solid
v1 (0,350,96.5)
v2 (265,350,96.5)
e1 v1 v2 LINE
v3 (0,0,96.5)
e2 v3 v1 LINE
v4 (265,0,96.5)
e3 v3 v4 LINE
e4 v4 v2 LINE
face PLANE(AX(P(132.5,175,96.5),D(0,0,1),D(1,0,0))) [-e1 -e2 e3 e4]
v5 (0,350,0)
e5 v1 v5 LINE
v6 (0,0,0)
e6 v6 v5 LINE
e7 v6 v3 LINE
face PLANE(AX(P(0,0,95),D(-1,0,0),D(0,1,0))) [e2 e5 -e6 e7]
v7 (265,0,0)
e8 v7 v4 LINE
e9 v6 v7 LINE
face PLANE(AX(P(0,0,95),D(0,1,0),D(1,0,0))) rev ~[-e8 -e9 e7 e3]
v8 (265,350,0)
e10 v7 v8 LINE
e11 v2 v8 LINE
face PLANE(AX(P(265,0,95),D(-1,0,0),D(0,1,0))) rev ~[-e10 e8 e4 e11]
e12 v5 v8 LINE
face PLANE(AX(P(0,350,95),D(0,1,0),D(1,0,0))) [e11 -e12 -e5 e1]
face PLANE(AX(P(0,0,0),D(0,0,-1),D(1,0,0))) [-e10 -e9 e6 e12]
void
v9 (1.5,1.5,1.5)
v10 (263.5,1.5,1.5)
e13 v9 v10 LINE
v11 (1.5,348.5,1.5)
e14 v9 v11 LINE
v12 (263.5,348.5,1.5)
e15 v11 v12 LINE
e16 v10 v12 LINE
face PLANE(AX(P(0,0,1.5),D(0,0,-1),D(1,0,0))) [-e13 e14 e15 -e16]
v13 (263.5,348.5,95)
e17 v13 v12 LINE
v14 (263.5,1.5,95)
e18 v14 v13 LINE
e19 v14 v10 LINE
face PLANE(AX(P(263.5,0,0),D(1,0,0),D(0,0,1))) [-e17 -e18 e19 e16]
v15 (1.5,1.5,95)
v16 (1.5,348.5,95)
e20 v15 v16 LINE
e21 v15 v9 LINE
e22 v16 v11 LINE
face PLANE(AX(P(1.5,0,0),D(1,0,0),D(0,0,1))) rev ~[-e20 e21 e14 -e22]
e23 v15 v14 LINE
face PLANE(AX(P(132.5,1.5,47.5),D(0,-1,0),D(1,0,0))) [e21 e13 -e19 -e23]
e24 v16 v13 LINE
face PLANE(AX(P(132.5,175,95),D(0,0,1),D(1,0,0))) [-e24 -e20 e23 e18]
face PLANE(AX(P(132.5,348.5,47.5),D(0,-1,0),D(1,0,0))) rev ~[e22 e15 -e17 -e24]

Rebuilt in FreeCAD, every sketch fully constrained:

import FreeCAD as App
import Part
import Sketcher
from FreeCAD import Vector
Q = App.Units.Quantity


def faces_at(feature, points):
    """Names of the faces that lie closest to the given points."""
    faces = feature.Shape.Faces
    near = lambda p: min(range(len(faces)), key=lambda i: faces[i].distToShape(Part.Vertex(*p))[0])
    return sorted({f"Face{near(p) + 1}" for p in points})

doc = App.newDocument("Part")
body = doc.addObject("PartDesign::Body", "Body")

# Sketch on XZ plane
sketch1 = body.newObject("Sketcher::SketchObject", "Sketch")
sketch1.AttachmentSupport = (doc.getObject("XZ_Plane"), [""])
sketch1.MapMode = "FlatFace"
sketch1.addGeometry([
    Part.LineSegment(Vector(0, 95, 0), Vector(0, 0, 0)),
    Part.LineSegment(Vector(0, 0, 0), Vector(265, 0, 0)),
    Part.LineSegment(Vector(265, 0, 0), Vector(265, 95, 0)),
    Part.LineSegment(Vector(265, 95, 0), Vector(0, 95, 0)),
], False)
sketch1.addConstraint([
    Sketcher.Constraint("Coincident", 0, 2, 1, 1),
    Sketcher.Constraint("Coincident", 1, 2, 2, 1),
    Sketcher.Constraint("Coincident", 2, 2, 3, 1),
    Sketcher.Constraint("Coincident", 3, 2, 0, 1),
    Sketcher.Constraint("Vertical", 0),
    Sketcher.Constraint("Horizontal", 1),
    Sketcher.Constraint("Vertical", 2),
    Sketcher.Constraint("Horizontal", 3),
    Sketcher.Constraint("Coincident", 0, 2, -1, 1),
    Sketcher.Constraint("DistanceX", 1, 1, 1, 2, Q("265 mm")),
    Sketcher.Constraint("DistanceY", 0, 2, 0, 1, Q("95 mm")),
])
pad1 = body.newObject("PartDesign::Pad", "Pad")
pad1.Profile = sketch1
pad1.Length = 350
pad1.Reversed = True
doc.recompute()

thickness = body.newObject("PartDesign::Thickness", "Thickness")
thickness.Base = (pad1, faces_at(pad1, [(132.5, 175, 95)]))
thickness.Value = 1.5
thickness.Reversed = True
thickness.Join = "Arc"

# Sketch on XY plane
sketch2 = body.newObject("Sketcher::SketchObject", "Sketch001")
sketch2.AttachmentSupport = (doc.getObject("XY_Plane"), [""])
sketch2.MapMode = "FlatFace"
sketch2.AttachmentOffset = App.Placement(Vector(0, 0, 95), App.Rotation())
sketch2.addGeometry([
    Part.LineSegment(Vector(0, 350, 0), Vector(0, 0, 0)),
    Part.LineSegment(Vector(0, 0, 0), Vector(265, 0, 0)),
    Part.LineSegment(Vector(265, 0, 0), Vector(265, 350, 0)),
    Part.LineSegment(Vector(265, 350, 0), Vector(0, 350, 0)),
], False)
sketch2.addConstraint([
    Sketcher.Constraint("Coincident", 0, 2, 1, 1),
    Sketcher.Constraint("Coincident", 1, 2, 2, 1),
    Sketcher.Constraint("Coincident", 2, 2, 3, 1),
    Sketcher.Constraint("Coincident", 3, 2, 0, 1),
    Sketcher.Constraint("Vertical", 0),
    Sketcher.Constraint("Horizontal", 1),
    Sketcher.Constraint("Vertical", 2),
    Sketcher.Constraint("Horizontal", 3),
    Sketcher.Constraint("Coincident", 0, 2, -1, 1),
    Sketcher.Constraint("DistanceX", 1, 1, 1, 2, Q("265 mm")),
    Sketcher.Constraint("DistanceY", 0, 2, 0, 1, Q("350 mm")),
])
pad2 = body.newObject("PartDesign::Pad", "Pad001")
pad2.Profile = sketch2
pad2.Length = 1.5

doc.recompute()
